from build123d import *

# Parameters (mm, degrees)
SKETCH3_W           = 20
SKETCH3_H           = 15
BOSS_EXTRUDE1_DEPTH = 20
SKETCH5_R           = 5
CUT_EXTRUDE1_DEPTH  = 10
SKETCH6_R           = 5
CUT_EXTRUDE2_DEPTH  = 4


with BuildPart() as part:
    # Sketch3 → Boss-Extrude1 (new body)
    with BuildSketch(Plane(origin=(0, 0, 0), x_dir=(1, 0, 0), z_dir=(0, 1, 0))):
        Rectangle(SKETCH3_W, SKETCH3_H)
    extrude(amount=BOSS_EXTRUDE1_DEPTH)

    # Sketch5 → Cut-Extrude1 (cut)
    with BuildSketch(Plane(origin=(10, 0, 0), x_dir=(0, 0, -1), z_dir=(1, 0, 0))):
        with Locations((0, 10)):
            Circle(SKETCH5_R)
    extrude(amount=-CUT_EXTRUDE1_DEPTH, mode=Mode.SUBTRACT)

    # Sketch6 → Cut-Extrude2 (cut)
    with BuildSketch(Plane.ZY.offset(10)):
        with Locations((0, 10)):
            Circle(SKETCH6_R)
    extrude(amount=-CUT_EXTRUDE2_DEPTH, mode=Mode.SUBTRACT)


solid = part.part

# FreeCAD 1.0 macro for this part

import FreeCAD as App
import Part
import Sketcher
from FreeCAD import Vector
Q = App.Units.Quantity


def add_polygon(sketch, points):
    """Adds a closed chain of lines whose ends are joined by coincident constraints."""
    first, n = sketch.GeometryCount, len(points)
    for a, b in zip(points, points[1:] + points[:1]):
        sketch.addGeometry(Part.LineSegment(App.Vector(*a, 0), App.Vector(*b, 0)), False)
    for i in range(n):
        sketch.addConstraint(Sketcher.Constraint("Coincident", first + i, 2, first + (i + 1) % n, 1))

doc = App.newDocument("Part")
params = doc.addObject("Spreadsheet::Sheet", "Params")
for row, (alias, value) in enumerate([
    ("sketch1_width", "20 mm"),
    ("sketch1_height", "15 mm"),
    ("pad1_length", "20 mm"),
    ("sketch2_diameter", "10 mm"),
    ("pocket1_length", "10 mm"),
    ("sketch3_diameter", "10 mm"),
    ("pocket2_length", "4 mm"),
], start=1):
    params.set(f"A{row}", alias)
    params.set(f"B{row}", "=" + value)
    params.setAlias(f"B{row}", alias)

body = doc.addObject("PartDesign::Body", "Body")

# Sketch on XZ plane
sketch1 = doc.addObject("Sketcher::SketchObject", "Sketch")
body.addObject(sketch1)
sketch1.AttachmentSupport = (doc.XZ_Plane, [""])
sketch1.MapMode = "FlatFace"
add_polygon(sketch1, [(-10, -8), (-10, 8), (10, 8), (10, -8)])  # lines 0-3
sketch1.addConstraint(Sketcher.Constraint("Vertical", 0))
sketch1.addConstraint(Sketcher.Constraint("Horizontal", 1))
sketch1.addConstraint(Sketcher.Constraint("Vertical", 2))
sketch1.addConstraint(Sketcher.Constraint("Horizontal", 3))
sketch1.addConstraint(Sketcher.Constraint("Symmetric", 0, 2, 2, 2, -1, 1))
sketch1.addConstraint(Sketcher.Constraint("DistanceX", 1, 1, 1, 2, Q("20 mm")))
sketch1.addConstraint(Sketcher.Constraint("DistanceY", 0, 1, 0, 2, Q("15 mm")))
sketch1.setExpression("Constraints[9]", "Params.sketch1_width")
sketch1.setExpression("Constraints[10]", "Params.sketch1_height")
pad1 = doc.addObject("PartDesign::Pad", "Pad")
body.addObject(pad1)
pad1.Profile = sketch1
pad1.setExpression("Length", "Params.pad1_length")
pad1.Reversed = True

# Sketch on YZ plane
sketch2 = doc.addObject("Sketcher::SketchObject", "Sketch001")
body.addObject(sketch2)
sketch2.AttachmentSupport = (doc.YZ_Plane, [""])
sketch2.MapMode = "FlatFace"
sketch2.AttachmentOffset = App.Placement(Vector(0, 0, 10), App.Rotation())
sketch2.addGeometry(Part.Circle(Vector(10, 0, 0), Vector(0, 0, 1), 5), False)
sketch2.addConstraint(Sketcher.Constraint("PointOnObject", 0, 3, -1))
sketch2.addConstraint(Sketcher.Constraint("Diameter", 0, Q("10 mm")))
sketch2.addConstraint(Sketcher.Constraint("DistanceX", -1, 1, 0, 3, Q("10 mm")))
sketch2.setExpression("Constraints[1]", "Params.sketch2_diameter")
pocket1 = doc.addObject("PartDesign::Pocket", "Pocket")
body.addObject(pocket1)
pocket1.Profile = sketch2
pocket1.setExpression("Length", "Params.pocket1_length")

# Sketch on YZ plane
sketch3 = doc.addObject("Sketcher::SketchObject", "Sketch002")
body.addObject(sketch3)
sketch3.AttachmentSupport = (doc.YZ_Plane, [""])
sketch3.MapMode = "FlatFace"
sketch3.AttachmentOffset = App.Placement(Vector(0, 0, -10), App.Rotation())
sketch3.addGeometry(Part.Circle(Vector(10, 0, 0), Vector(0, 0, 1), 5), False)
sketch3.addConstraint(Sketcher.Constraint("PointOnObject", 0, 3, -1))
sketch3.addConstraint(Sketcher.Constraint("Diameter", 0, Q("10 mm")))
sketch3.addConstraint(Sketcher.Constraint("DistanceX", -1, 1, 0, 3, Q("10 mm")))
sketch3.setExpression("Constraints[1]", "Params.sketch3_diameter")
pocket2 = doc.addObject("PartDesign::Pocket", "Pocket001")
body.addObject(pocket2)
pocket2.Profile = sketch3
pocket2.setExpression("Length", "Params.pocket2_length")
pocket2.Reversed = True

doc.recompute()
